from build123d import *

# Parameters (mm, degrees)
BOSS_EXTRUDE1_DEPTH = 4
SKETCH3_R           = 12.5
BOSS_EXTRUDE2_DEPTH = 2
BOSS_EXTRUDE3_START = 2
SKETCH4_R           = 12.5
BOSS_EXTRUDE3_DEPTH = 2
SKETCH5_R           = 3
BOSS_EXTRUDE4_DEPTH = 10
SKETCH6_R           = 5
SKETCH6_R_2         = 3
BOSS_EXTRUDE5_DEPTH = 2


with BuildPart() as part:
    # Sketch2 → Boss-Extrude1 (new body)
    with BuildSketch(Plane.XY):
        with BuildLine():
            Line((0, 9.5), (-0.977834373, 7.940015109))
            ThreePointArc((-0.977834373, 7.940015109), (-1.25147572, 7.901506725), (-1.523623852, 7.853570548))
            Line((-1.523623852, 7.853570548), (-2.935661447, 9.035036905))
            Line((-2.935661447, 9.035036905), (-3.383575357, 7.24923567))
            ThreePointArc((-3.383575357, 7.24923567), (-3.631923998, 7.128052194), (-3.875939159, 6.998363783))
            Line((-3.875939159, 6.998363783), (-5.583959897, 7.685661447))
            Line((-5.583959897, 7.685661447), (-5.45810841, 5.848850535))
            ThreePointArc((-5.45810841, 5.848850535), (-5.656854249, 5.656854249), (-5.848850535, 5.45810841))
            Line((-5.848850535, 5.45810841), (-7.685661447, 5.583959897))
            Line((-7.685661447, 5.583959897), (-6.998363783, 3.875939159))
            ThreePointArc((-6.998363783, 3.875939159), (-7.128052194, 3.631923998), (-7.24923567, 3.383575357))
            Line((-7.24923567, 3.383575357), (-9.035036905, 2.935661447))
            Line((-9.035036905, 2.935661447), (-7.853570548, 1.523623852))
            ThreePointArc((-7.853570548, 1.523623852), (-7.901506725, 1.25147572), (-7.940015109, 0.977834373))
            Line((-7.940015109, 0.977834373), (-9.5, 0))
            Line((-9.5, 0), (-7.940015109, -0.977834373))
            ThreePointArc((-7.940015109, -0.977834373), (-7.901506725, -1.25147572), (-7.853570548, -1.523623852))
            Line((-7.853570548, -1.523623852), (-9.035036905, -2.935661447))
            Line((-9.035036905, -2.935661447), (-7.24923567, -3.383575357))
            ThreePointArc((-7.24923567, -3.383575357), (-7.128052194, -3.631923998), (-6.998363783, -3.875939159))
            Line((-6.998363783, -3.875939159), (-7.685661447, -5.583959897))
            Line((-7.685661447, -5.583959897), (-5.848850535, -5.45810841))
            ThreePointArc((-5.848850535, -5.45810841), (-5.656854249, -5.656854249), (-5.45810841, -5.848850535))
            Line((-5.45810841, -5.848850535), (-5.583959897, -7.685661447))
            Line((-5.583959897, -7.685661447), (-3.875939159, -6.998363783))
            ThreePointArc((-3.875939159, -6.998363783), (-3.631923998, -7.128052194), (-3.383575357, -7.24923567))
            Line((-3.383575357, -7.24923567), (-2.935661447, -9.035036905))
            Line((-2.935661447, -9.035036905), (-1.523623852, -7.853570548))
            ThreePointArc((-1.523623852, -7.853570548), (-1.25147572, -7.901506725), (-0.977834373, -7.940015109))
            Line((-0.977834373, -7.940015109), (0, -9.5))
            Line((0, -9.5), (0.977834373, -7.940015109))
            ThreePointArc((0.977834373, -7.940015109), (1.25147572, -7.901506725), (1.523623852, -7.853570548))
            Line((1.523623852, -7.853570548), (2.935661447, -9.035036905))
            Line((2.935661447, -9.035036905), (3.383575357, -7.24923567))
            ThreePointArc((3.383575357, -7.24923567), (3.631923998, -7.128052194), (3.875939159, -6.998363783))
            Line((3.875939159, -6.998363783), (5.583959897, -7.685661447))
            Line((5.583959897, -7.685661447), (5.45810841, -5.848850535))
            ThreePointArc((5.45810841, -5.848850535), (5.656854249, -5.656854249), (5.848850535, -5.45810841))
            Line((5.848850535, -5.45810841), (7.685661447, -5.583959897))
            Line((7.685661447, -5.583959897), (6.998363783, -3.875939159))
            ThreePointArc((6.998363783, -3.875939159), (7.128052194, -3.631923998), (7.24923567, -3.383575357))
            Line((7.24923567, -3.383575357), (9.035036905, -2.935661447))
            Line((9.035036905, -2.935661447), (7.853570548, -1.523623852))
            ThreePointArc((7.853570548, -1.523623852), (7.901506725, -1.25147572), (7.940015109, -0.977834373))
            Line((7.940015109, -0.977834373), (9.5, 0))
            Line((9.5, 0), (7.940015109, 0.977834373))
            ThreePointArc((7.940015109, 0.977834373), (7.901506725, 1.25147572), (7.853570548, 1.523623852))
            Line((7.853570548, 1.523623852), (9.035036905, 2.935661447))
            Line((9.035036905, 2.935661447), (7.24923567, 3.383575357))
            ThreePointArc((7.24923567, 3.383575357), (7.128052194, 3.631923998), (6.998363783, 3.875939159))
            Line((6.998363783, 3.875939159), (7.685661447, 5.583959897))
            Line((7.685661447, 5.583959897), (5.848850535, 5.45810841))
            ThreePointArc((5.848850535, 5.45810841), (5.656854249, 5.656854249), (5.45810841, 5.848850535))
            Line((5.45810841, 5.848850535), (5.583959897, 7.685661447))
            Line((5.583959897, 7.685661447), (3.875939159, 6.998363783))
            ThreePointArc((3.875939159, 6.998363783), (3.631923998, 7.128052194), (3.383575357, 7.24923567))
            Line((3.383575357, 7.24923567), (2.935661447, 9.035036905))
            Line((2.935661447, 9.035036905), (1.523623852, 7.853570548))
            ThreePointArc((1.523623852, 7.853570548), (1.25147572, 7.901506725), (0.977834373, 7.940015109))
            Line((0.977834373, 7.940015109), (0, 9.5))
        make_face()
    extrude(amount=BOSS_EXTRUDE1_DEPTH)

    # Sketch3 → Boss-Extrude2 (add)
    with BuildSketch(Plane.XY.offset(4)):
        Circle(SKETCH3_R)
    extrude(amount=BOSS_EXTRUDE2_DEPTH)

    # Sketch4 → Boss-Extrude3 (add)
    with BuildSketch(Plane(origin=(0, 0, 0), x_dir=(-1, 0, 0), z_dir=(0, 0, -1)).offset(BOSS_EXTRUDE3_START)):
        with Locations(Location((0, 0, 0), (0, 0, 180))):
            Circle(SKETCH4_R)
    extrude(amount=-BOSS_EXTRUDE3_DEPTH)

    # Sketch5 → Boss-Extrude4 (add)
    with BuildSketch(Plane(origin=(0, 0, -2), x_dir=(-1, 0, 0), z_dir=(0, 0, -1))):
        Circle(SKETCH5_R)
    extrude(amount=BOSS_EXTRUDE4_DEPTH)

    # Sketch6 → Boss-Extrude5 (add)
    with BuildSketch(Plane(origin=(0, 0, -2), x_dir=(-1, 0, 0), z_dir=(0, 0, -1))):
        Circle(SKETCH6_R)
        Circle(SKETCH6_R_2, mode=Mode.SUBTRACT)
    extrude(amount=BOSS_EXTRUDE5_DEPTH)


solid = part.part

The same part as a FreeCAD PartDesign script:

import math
import FreeCAD as App
import Part
import Sketcher

V = App.Vector
Q = App.Units.Quantity

doc = App.newDocument("Part")
params = doc.addObject("Spreadsheet::Sheet", "Params")
for row, (alias, value) in enumerate([
    ("sketch1_radius", "7.999999 mm"),
    ("pad1_length", "4 mm"),
    ("sketch2_diameter", "25 mm"),
    ("pad2_length", "2 mm"),
    ("sketch3_diameter", "25 mm"),
    ("pad3_length", "2 mm"),
    ("sketch4_diameter", "6 mm"),
    ("pad4_length", "10 mm"),
    ("sketch5_diameter", "10 mm"),
    ("sketch5_diameter2", "6 mm"),
    ("pad5_length", "2 mm"),
], start=1):
    params.set(f"A{row}", alias)
    params.set(f"B{row}", "=" + value)
    params.setAlias(f"B{row}", alias)

body = doc.addObject("PartDesign::Body", "Body")

# Sketch on XY plane
sketch1 = body.newObject("Sketcher::SketchObject", "Sketch")
sketch1.AttachmentSupport = (doc.getObject("XY_Plane"), [""])
sketch1.MapMode = "FlatFace"
sketch1.addGeometry([
    Part.LineSegment(V(0, 9.5, 0), V(-1, 7.9, 0)),  # 0
    Part.ArcOfCircle(Part.Circle(V(0, 0, 0), V(0, 0, 1), 8), math.radians(97.02), math.radians(100.98)),  # 1
    Part.LineSegment(V(-1.5, 7.9, 0), V(-2.9, 9, 0)),  # 2
    Part.LineSegment(V(-2.9, 9, 0), V(-3.4, 7.2, 0)),  # 3
    Part.ArcOfCircle(Part.Circle(V(0, 0, 0), V(0, 0, 1), 8), math.radians(115.02), math.radians(118.98)),  # 4
    Part.LineSegment(V(-3.9, 7, 0), V(-5.6, 7.7, 0)),  # 5
    Part.LineSegment(V(-5.6, 7.7, 0), V(-5.5, 5.8, 0)),  # 6
    Part.ArcOfCircle(Part.Circle(V(0, 0, 0), V(0, 0, 1), 8), math.radians(133.02), math.radians(136.98)),  # 7
    Part.LineSegment(V(-5.8, 5.5, 0), V(-7.7, 5.6, 0)),  # 8
    Part.LineSegment(V(-7.7, 5.6, 0), V(-7, 3.9, 0)),  # 9
    Part.ArcOfCircle(Part.Circle(V(0, 0, 0), V(0, 0, 1), 8), math.radians(151.02), math.radians(154.98)),  # 10
    Part.LineSegment(V(-7.2, 3.4, 0), V(-9, 2.9, 0)),  # 11
    Part.LineSegment(V(-9, 2.9, 0), V(-7.9, 1.5, 0)),  # 12
    Part.ArcOfCircle(Part.Circle(V(0, 0, 0), V(0, 0, 1), 8), math.radians(169.02), math.radians(172.98)),  # 13
    Part.LineSegment(V(-7.9, 1, 0), V(-9.5, 0, 0)),  # 14
    Part.LineSegment(V(-9.5, 0, 0), V(-7.9, -1, 0)),  # 15
    Part.ArcOfCircle(Part.Circle(V(0, 0, 0), V(0, 0, 1), 8), math.radians(-172.98), math.radians(-169.02)),  # 16
    Part.LineSegment(V(-7.9, -1.5, 0), V(-9, -2.9, 0)),  # 17
    Part.LineSegment(V(-9, -2.9, 0), V(-7.2, -3.4, 0)),  # 18
    Part.ArcOfCircle(Part.Circle(V(0, 0, 0), V(0, 0, 1), 8), math.radians(-154.98), math.radians(-151.02)),  # 19
    Part.LineSegment(V(-7, -3.9, 0), V(-7.7, -5.6, 0)),  # 20
    Part.LineSegment(V(-7.7, -5.6, 0), V(-5.8, -5.5, 0)),  # 21
    Part.ArcOfCircle(Part.Circle(V(0, 0, 0), V(0, 0, 1), 8), math.radians(-136.98), math.radians(-133.02)),  # 22
    Part.LineSegment(V(-5.5, -5.8, 0), V(-5.6, -7.7, 0)),  # 23
    Part.LineSegment(V(-5.6, -7.7, 0), V(-3.9, -7, 0)),  # 24
    Part.ArcOfCircle(Part.Circle(V(0, 0, 0), V(0, 0, 1), 8), math.radians(-118.98), math.radians(-115.02)),  # 25
    Part.LineSegment(V(-3.4, -7.2, 0), V(-2.9, -9, 0)),  # 26
    Part.LineSegment(V(-2.9, -9, 0), V(-1.5, -7.9, 0)),  # 27
    Part.ArcOfCircle(Part.Circle(V(0, 0, 0), V(0, 0, 1), 8), math.radians(-100.98), math.radians(-97.02)),  # 28
    Part.LineSegment(V(-1, -7.9, 0), V(0, -9.5, 0)),  # 29
    Part.LineSegment(V(0, -9.5, 0), V(1, -7.9, 0)),  # 30
    Part.ArcOfCircle(Part.Circle(V(0, 0, 0), V(0, 0, 1), 8), math.radians(-82.98), math.radians(-79.02)),  # 31
    Part.LineSegment(V(1.5, -7.9, 0), V(2.9, -9, 0)),  # 32
    Part.LineSegment(V(2.9, -9, 0), V(3.4, -7.2, 0)),  # 33
    Part.ArcOfCircle(Part.Circle(V(0, 0, 0), V(0, 0, 1), 8), math.radians(-64.98), math.radians(-61.02)),  # 34
    Part.LineSegment(V(3.9, -7, 0), V(5.6, -7.7, 0)),  # 35
    Part.LineSegment(V(5.6, -7.7, 0), V(5.5, -5.8, 0)),  # 36
    Part.ArcOfCircle(Part.Circle(V(0, 0, 0), V(0, 0, 1), 8), math.radians(-46.98), math.radians(-43.02)),  # 37
    Part.LineSegment(V(5.8, -5.5, 0), V(7.7, -5.6, 0)),  # 38
    Part.LineSegment(V(7.7, -5.6, 0), V(7, -3.9, 0)),  # 39
    Part.ArcOfCircle(Part.Circle(V(0, 0, 0), V(0, 0, 1), 8), math.radians(-28.98), math.radians(-25.02)),  # 40
    Part.LineSegment(V(7.2, -3.4, 0), V(9, -2.9, 0)),  # 41
    Part.LineSegment(V(9, -2.9, 0), V(7.9, -1.5, 0)),  # 42
    Part.ArcOfCircle(Part.Circle(V(0, 0, 0), V(0, 0, 1), 8), math.radians(-10.98), math.radians(-7.02)),  # 43
    Part.LineSegment(V(7.9, -1, 0), V(9.5, 0, 0)),  # 44
    Part.LineSegment(V(9.5, 0, 0), V(7.9, 1, 0)),  # 45
    Part.ArcOfCircle(Part.Circle(V(0, 0, 0), V(0, 0, 1), 8), math.radians(7.02), math.radians(10.98)),  # 46
    Part.LineSegment(V(7.9, 1.5, 0), V(9, 2.9, 0)),  # 47
    Part.LineSegment(V(9, 2.9, 0), V(7.2, 3.4, 0)),  # 48
    Part.ArcOfCircle(Part.Circle(V(0, 0, 0), V(0, 0, 1), 8), math.radians(25.02), math.radians(28.98)),  # 49
    Part.LineSegment(V(7, 3.9, 0), V(7.7, 5.6, 0)),  # 50
    Part.LineSegment(V(7.7, 5.6, 0), V(5.8, 5.5, 0)),  # 51
    Part.ArcOfCircle(Part.Circle(V(0, 0, 0), V(0, 0, 1), 8), math.radians(43.02), math.radians(46.98)),  # 52
    Part.LineSegment(V(5.5, 5.8, 0), V(5.6, 7.7, 0)),  # 53
    Part.LineSegment(V(5.6, 7.7, 0), V(3.9, 7, 0)),  # 54
    Part.ArcOfCircle(Part.Circle(V(0, 0, 0), V(0, 0, 1), 8), math.radians(61.02), math.radians(64.98)),  # 55
    Part.LineSegment(V(3.4, 7.2, 0), V(2.9, 9, 0)),  # 56
    Part.LineSegment(V(2.9, 9, 0), V(1.5, 7.9, 0)),  # 57
    Part.ArcOfCircle(Part.Circle(V(0, 0, 0), V(0, 0, 1), 8), math.radians(79.02), math.radians(82.98)),  # 58
    Part.LineSegment(V(1, 7.9, 0), V(0, 9.5, 0)),  # 59
], False)
sketch1.addConstraint([
    Sketcher.Constraint("Coincident", 0, 2, 1, 1),
    Sketcher.Constraint("Coincident", 1, 2, 2, 1),
    Sketcher.Constraint("Coincident", 2, 2, 3, 1),
    Sketcher.Constraint("Coincident", 3, 2, 4, 1),
    Sketcher.Constraint("Coincident", 4, 2, 5, 1),
    Sketcher.Constraint("Coincident", 5, 2, 6, 1),
    Sketcher.Constraint("Coincident", 6, 2, 7, 1),
    Sketcher.Constraint("Coincident", 7, 2, 8, 1),
    Sketcher.Constraint("Coincident", 8, 2, 9, 1),
    Sketcher.Constraint("Coincident", 9, 2, 10, 1),
    Sketcher.Constraint("Coincident", 10, 2, 11, 1),
    Sketcher.Constraint("Coincident", 11, 2, 12, 1),
    Sketcher.Constraint("Coincident", 12, 2, 13, 1),
    Sketcher.Constraint("Coincident", 13, 2, 14, 1),
    Sketcher.Constraint("Coincident", 14, 2, 15, 1),
    Sketcher.Constraint("Coincident", 15, 2, 16, 1),
    Sketcher.Constraint("Coincident", 16, 2, 17, 1),
    Sketcher.Constraint("Coincident", 17, 2, 18, 1),
    Sketcher.Constraint("Coincident", 18, 2, 19, 1),
    Sketcher.Constraint("Coincident", 19, 2, 20, 1),
    Sketcher.Constraint("Coincident", 20, 2, 21, 1),
    Sketcher.Constraint("Coincident", 21, 2, 22, 1),
    Sketcher.Constraint("Coincident", 22, 2, 23, 1),
    Sketcher.Constraint("Coincident", 23, 2, 24, 1),
    Sketcher.Constraint("Coincident", 24, 2, 25, 1),
    Sketcher.Constraint("Coincident", 25, 2, 26, 1),
    Sketcher.Constraint("Coincident", 26, 2, 27, 1),
    Sketcher.Constraint("Coincident", 27, 2, 28, 1),
    Sketcher.Constraint("Coincident", 28, 2, 29, 1),
    Sketcher.Constraint("Coincident", 29, 2, 30, 1),
    Sketcher.Constraint("Coincident", 30, 2, 31, 1),
    Sketcher.Constraint("Coincident", 31, 2, 32, 1),
    Sketcher.Constraint("Coincident", 32, 2, 33, 1),
    Sketcher.Constraint("Coincident", 33, 2, 34, 1),
    Sketcher.Constraint("Coincident", 34, 2, 35, 1),
    Sketcher.Constraint("Coincident", 35, 2, 36, 1),
    Sketcher.Constraint("Coincident", 36, 2, 37, 1),
    Sketcher.Constraint("Coincident", 37, 2, 38, 1),
    Sketcher.Constraint("Coincident", 38, 2, 39, 1),
    Sketcher.Constraint("Coincident", 39, 2, 40, 1),
    Sketcher.Constraint("Coincident", 40, 2, 41, 1),
    Sketcher.Constraint("Coincident", 41, 2, 42, 1),
    Sketcher.Constraint("Coincident", 42, 2, 43, 1),
    Sketcher.Constraint("Coincident", 43, 2, 44, 1),
    Sketcher.Constraint("Coincident", 44, 2, 45, 1),
    Sketcher.Constraint("Coincident", 45, 2, 46, 1),
    Sketcher.Constraint("Coincident", 46, 2, 47, 1),
    Sketcher.Constraint("Coincident", 47, 2, 48, 1),
    Sketcher.Constraint("Coincident", 48, 2, 49, 1),
    Sketcher.Constraint("Coincident", 49, 2, 50, 1),
    Sketcher.Constraint("Coincident", 50, 2, 51, 1),
    Sketcher.Constraint("Coincident", 51, 2, 52, 1),
    Sketcher.Constraint("Coincident", 52, 2, 53, 1),
    Sketcher.Constraint("Coincident", 53, 2, 54, 1),
    Sketcher.Constraint("Coincident", 54, 2, 55, 1),
    Sketcher.Constraint("Coincident", 55, 2, 56, 1),
    Sketcher.Constraint("Coincident", 56, 2, 57, 1),
    Sketcher.Constraint("Coincident", 57, 2, 58, 1),
    Sketcher.Constraint("Coincident", 58, 2, 59, 1),
    Sketcher.Constraint("Coincident", 59, 2, 0, 1),
    Sketcher.Constraint("Coincident", 1, 3, -1, 1),
    Sketcher.Constraint("Coincident", 4, 3, -1, 1),
    Sketcher.Constraint("Coincident", 7, 3, -1, 1),
    Sketcher.Constraint("Coincident", 10, 3, -1, 1),
    Sketcher.Constraint("Coincident", 13, 3, -1, 1),
    Sketcher.Constraint("Coincident", 16, 3, -1, 1),
    Sketcher.Constraint("Coincident", 19, 3, -1, 1),
    Sketcher.Constraint("Coincident", 22, 3, -1, 1),
    Sketcher.Constraint("Coincident", 25, 3, -1, 1),
    Sketcher.Constraint("Coincident", 28, 3, -1, 1),
    Sketcher.Constraint("Coincident", 31, 3, -1, 1),
    Sketcher.Constraint("Coincident", 34, 3, -1, 1),
    Sketcher.Constraint("Coincident", 37, 3, -1, 1),
    Sketcher.Constraint("Coincident", 40, 3, -1, 1),
    Sketcher.Constraint("Coincident", 43, 3, -1, 1),
    Sketcher.Constraint("Coincident", 46, 3, -1, 1),
    Sketcher.Constraint("Coincident", 49, 3, -1, 1),
    Sketcher.Constraint("Coincident", 52, 3, -1, 1),
    Sketcher.Constraint("Coincident", 55, 3, -1, 1),
    Sketcher.Constraint("Coincident", 58, 3, -1, 1),
    Sketcher.Constraint("Equal", 1, 4),
    Sketcher.Constraint("Equal", 4, 7),
    Sketcher.Constraint("Equal", 7, 10),
    Sketcher.Constraint("Equal", 10, 13),
    Sketcher.Constraint("Equal", 13, 16),
    Sketcher.Constraint("Equal", 16, 19),
    Sketcher.Constraint("Equal", 19, 22),
    Sketcher.Constraint("Equal", 22, 25),
    Sketcher.Constraint("Equal", 25, 28),
    Sketcher.Constraint("Equal", 28, 31),
    Sketcher.Constraint("Equal", 31, 34),
    Sketcher.Constraint("Equal", 34, 37),
    Sketcher.Constraint("Equal", 37, 40),
    Sketcher.Constraint("Equal", 40, 43),
    Sketcher.Constraint("Equal", 43, 46),
    Sketcher.Constraint("Equal", 46, 49),
    Sketcher.Constraint("Equal", 49, 52),
    Sketcher.Constraint("Equal", 52, 55),
    Sketcher.Constraint("Equal", 55, 58),
    Sketcher.Constraint("Symmetric", 2, 2, 32, 2, -1, 1),
    Sketcher.Constraint("Symmetric", 5, 2, 35, 2, -1, 1),
    Sketcher.Constraint("Symmetric", 8, 2, 38, 2, -1, 1),
    Sketcher.Constraint("Symmetric", 11, 2, 41, 2, -1, 1),
    Sketcher.Constraint("Symmetric", 14, 2, 44, 2, -1, 1),
    Sketcher.Constraint("Symmetric", 17, 2, 47, 2, -1, 1),
    Sketcher.Constraint("Symmetric", 20, 2, 50, 2, -1, 1),
    Sketcher.Constraint("Symmetric", 23, 2, 53, 2, -1, 1),
    Sketcher.Constraint("Symmetric", 26, 2, 56, 2, -1, 1),
    Sketcher.Constraint("Symmetric", 29, 2, 59, 2, -1, 1),
    Sketcher.Constraint("Symmetric", 26, 2, 32, 2, -2),
    Sketcher.Constraint("Symmetric", 23, 2, 35, 2, -2),
    Sketcher.Constraint("Symmetric", 20, 2, 38, 2, -2),
    Sketcher.Constraint("Symmetric", 17, 2, 41, 2, -2),
    Sketcher.Constraint("PointOnObject", 14, 2, -1),
    Sketcher.Constraint("PointOnObject", 29, 2, -2),
    Sketcher.Constraint("Perpendicular", 0, 15),
    Sketcher.Constraint("Perpendicular", 2, 17),
    Sketcher.Constraint("Perpendicular", 3, 18),
    Sketcher.Constraint("Perpendicular", 5, 20),
    Sketcher.Constraint("Perpendicular", 6, 21),
    Sketcher.Constraint("Perpendicular", 8, 23),
    Sketcher.Constraint("Perpendicular", 9, 24),
    Sketcher.Constraint("Perpendicular", 11, 26),
    Sketcher.Constraint("Perpendicular", 12, 27),
    Sketcher.Constraint("Perpendicular", 14, 29),
    Sketcher.Constraint("Perpendicular", 15, 30),
    Sketcher.Constraint("Perpendicular", 17, 32),
    Sketcher.Constraint("Perpendicular", 18, 33),
    Sketcher.Constraint("Perpendicular", 20, 35),
    Sketcher.Constraint("Perpendicular", 21, 36),
    Sketcher.Constraint("Perpendicular", 23, 38),
    Sketcher.Constraint("Perpendicular", 24, 39),
    Sketcher.Constraint("Perpendicular", 26, 41),
    Sketcher.Constraint("Perpendicular", 27, 42),
    Sketcher.Constraint("Perpendicular", 29, 44),
    Sketcher.Constraint("Perpendicular", 30, 45),
    Sketcher.Constraint("Perpendicular", 32, 47),
    Sketcher.Constraint("Perpendicular", 33, 48),
    Sketcher.Constraint("Perpendicular", 35, 50),
    Sketcher.Constraint("Perpendicular", 36, 51),
    Sketcher.Constraint("Perpendicular", 38, 53),
    Sketcher.Constraint("Perpendicular", 39, 54),
    Sketcher.Constraint("Perpendicular", 41, 56),
    Sketcher.Constraint("Perpendicular", 42, 57),
    Sketcher.Constraint("Perpendicular", 44, 59),
    Sketcher.Constraint("Horizontal", 28, 2, 30, 2),
    Sketcher.Constraint("Horizontal", 27, 2, 31, 2),
    Sketcher.Constraint("Horizontal", 25, 2, 33, 2),
    Sketcher.Constraint("Horizontal", 24, 2, 34, 2),
    Sketcher.Constraint("Horizontal", 22, 2, 36, 2),
    Sketcher.Constraint("Equal", 0, 2),
    Sketcher.Constraint("Equal", 2, 3),
    Sketcher.Constraint("Equal", 3, 5),
    Sketcher.Constraint("Equal", 5, 6),
    Sketcher.Constraint("Equal", 6, 8),
    Sketcher.Constraint("Equal", 8, 9),
    Sketcher.Constraint("Equal", 9, 11),
    Sketcher.Constraint("Equal", 11, 12),
    Sketcher.Constraint("Equal", 12, 14),
    Sketcher.Constraint("Radius", 1, Q("7.999999 mm")),
    Sketcher.Constraint("DistanceX", 14, 2, -1, 1, Q("9.5 mm")),
    Sketcher.Constraint("DistanceY", -1, 1, 1, 2, Q("7.853571 mm")),
    Sketcher.Constraint("DistanceX", 2, 2, -1, 1, Q("2.935661 mm")),
    Sketcher.Constraint("DistanceX", 4, 2, -1, 1, Q("3.875939 mm")),
    Sketcher.Constraint("DistanceX", 5, 2, -1, 1, Q("5.58396 mm")),
    Sketcher.Constraint("DistanceY", -1, 1, 5, 2, Q("7.685661 mm")),
])
sketch1.setExpression("Constraints[159]", "Params.sketch1_radius")
pad1 = body.newObject("PartDesign::Pad", "Pad")
pad1.Profile = sketch1
pad1.setExpression("Length", "Params.pad1_length")

# Sketch on XY plane
sketch2 = body.newObject("Sketcher::SketchObject", "Sketch001")
sketch2.AttachmentSupport = (doc.getObject("XY_Plane"), [""])
sketch2.MapMode = "FlatFace"
sketch2.AttachmentOffset = App.Placement(V(0, 0, 4), App.Rotation())
sketch2.addGeometry(Part.Circle(V(0, 0, 0), V(0, 0, 1), 12), False)
sketch2.addConstraint([
    Sketcher.Constraint("Coincident", 0, 3, -1, 1),
    Sketcher.Constraint("Diameter", 0, Q("25 mm")),
])
sketch2.setExpression("Constraints[1]", "Params.sketch2_diameter")
pad2 = body.newObject("PartDesign::Pad", "Pad001")
pad2.Profile = sketch2
pad2.setExpression("Length", "Params.pad2_length")

# Sketch on XY plane
sketch3 = body.newObject("Sketcher::SketchObject", "Sketch002")
sketch3.AttachmentSupport = (doc.getObject("XY_Plane"), [""])
sketch3.MapMode = "FlatFace"
sketch3.AttachmentOffset = App.Placement(V(0, 0, -2), App.Rotation())
sketch3.addGeometry(Part.Circle(V(0, 0, 0), V(0, 0, 1), 12), False)
sketch3.addConstraint([
    Sketcher.Constraint("Coincident", 0, 3, -1, 1),
    Sketcher.Constraint("Diameter", 0, Q("25 mm")),
])
sketch3.setExpression("Constraints[1]", "Params.sketch3_diameter")
pad3 = body.newObject("PartDesign::Pad", "Pad002")
pad3.Profile = sketch3
pad3.setExpression("Length", "Params.pad3_length")

# Sketch on XY plane
sketch4 = body.newObject("Sketcher::SketchObject", "Sketch003")
sketch4.AttachmentSupport = (doc.getObject("XY_Plane"), [""])
sketch4.MapMode = "FlatFace"
sketch4.AttachmentOffset = App.Placement(V(0, 0, -2), App.Rotation())
sketch4.addGeometry(Part.Circle(V(0, 0, 0), V(0, 0, 1), 3), False)
sketch4.addConstraint([
    Sketcher.Constraint("Coincident", 0, 3, -1, 1),
    Sketcher.Constraint("Diameter", 0, Q("6 mm")),
])
sketch4.setExpression("Constraints[1]", "Params.sketch4_diameter")
pad4 = body.newObject("PartDesign::Pad", "Pad003")
pad4.Profile = sketch4
pad4.setExpression("Length", "Params.pad4_length")
pad4.Reversed = True

# Sketch on XY plane
sketch5 = body.newObject("Sketcher::SketchObject", "Sketch004")
sketch5.AttachmentSupport = (doc.getObject("XY_Plane"), [""])
sketch5.MapMode = "FlatFace"
sketch5.AttachmentOffset = App.Placement(V(0, 0, -2), App.Rotation())
sketch5.addGeometry([
    Part.Circle(V(0, 0, 0), V(0, 0, 1), 5),
    Part.Circle(V(0, 0, 0), V(0, 0, 1), 3),
], False)
sketch5.addConstraint([
    Sketcher.Constraint("Coincident", 0, 3, -1, 1),
    Sketcher.Constraint("Coincident", 1, 3, -1, 1),
    Sketcher.Constraint("Diameter", 0, Q("10 mm")),
    Sketcher.Constraint("Diameter", 1, Q("6 mm")),
])
sketch5.setExpression("Constraints[2]", "Params.sketch5_diameter")
sketch5.setExpression("Constraints[3]", "Params.sketch5_diameter2")
pad5 = body.newObject("PartDesign::Pad", "Pad004")
pad5.Profile = sketch5
pad5.setExpression("Length", "Params.pad5_length")
pad5.Reversed = True

doc.recompute()
